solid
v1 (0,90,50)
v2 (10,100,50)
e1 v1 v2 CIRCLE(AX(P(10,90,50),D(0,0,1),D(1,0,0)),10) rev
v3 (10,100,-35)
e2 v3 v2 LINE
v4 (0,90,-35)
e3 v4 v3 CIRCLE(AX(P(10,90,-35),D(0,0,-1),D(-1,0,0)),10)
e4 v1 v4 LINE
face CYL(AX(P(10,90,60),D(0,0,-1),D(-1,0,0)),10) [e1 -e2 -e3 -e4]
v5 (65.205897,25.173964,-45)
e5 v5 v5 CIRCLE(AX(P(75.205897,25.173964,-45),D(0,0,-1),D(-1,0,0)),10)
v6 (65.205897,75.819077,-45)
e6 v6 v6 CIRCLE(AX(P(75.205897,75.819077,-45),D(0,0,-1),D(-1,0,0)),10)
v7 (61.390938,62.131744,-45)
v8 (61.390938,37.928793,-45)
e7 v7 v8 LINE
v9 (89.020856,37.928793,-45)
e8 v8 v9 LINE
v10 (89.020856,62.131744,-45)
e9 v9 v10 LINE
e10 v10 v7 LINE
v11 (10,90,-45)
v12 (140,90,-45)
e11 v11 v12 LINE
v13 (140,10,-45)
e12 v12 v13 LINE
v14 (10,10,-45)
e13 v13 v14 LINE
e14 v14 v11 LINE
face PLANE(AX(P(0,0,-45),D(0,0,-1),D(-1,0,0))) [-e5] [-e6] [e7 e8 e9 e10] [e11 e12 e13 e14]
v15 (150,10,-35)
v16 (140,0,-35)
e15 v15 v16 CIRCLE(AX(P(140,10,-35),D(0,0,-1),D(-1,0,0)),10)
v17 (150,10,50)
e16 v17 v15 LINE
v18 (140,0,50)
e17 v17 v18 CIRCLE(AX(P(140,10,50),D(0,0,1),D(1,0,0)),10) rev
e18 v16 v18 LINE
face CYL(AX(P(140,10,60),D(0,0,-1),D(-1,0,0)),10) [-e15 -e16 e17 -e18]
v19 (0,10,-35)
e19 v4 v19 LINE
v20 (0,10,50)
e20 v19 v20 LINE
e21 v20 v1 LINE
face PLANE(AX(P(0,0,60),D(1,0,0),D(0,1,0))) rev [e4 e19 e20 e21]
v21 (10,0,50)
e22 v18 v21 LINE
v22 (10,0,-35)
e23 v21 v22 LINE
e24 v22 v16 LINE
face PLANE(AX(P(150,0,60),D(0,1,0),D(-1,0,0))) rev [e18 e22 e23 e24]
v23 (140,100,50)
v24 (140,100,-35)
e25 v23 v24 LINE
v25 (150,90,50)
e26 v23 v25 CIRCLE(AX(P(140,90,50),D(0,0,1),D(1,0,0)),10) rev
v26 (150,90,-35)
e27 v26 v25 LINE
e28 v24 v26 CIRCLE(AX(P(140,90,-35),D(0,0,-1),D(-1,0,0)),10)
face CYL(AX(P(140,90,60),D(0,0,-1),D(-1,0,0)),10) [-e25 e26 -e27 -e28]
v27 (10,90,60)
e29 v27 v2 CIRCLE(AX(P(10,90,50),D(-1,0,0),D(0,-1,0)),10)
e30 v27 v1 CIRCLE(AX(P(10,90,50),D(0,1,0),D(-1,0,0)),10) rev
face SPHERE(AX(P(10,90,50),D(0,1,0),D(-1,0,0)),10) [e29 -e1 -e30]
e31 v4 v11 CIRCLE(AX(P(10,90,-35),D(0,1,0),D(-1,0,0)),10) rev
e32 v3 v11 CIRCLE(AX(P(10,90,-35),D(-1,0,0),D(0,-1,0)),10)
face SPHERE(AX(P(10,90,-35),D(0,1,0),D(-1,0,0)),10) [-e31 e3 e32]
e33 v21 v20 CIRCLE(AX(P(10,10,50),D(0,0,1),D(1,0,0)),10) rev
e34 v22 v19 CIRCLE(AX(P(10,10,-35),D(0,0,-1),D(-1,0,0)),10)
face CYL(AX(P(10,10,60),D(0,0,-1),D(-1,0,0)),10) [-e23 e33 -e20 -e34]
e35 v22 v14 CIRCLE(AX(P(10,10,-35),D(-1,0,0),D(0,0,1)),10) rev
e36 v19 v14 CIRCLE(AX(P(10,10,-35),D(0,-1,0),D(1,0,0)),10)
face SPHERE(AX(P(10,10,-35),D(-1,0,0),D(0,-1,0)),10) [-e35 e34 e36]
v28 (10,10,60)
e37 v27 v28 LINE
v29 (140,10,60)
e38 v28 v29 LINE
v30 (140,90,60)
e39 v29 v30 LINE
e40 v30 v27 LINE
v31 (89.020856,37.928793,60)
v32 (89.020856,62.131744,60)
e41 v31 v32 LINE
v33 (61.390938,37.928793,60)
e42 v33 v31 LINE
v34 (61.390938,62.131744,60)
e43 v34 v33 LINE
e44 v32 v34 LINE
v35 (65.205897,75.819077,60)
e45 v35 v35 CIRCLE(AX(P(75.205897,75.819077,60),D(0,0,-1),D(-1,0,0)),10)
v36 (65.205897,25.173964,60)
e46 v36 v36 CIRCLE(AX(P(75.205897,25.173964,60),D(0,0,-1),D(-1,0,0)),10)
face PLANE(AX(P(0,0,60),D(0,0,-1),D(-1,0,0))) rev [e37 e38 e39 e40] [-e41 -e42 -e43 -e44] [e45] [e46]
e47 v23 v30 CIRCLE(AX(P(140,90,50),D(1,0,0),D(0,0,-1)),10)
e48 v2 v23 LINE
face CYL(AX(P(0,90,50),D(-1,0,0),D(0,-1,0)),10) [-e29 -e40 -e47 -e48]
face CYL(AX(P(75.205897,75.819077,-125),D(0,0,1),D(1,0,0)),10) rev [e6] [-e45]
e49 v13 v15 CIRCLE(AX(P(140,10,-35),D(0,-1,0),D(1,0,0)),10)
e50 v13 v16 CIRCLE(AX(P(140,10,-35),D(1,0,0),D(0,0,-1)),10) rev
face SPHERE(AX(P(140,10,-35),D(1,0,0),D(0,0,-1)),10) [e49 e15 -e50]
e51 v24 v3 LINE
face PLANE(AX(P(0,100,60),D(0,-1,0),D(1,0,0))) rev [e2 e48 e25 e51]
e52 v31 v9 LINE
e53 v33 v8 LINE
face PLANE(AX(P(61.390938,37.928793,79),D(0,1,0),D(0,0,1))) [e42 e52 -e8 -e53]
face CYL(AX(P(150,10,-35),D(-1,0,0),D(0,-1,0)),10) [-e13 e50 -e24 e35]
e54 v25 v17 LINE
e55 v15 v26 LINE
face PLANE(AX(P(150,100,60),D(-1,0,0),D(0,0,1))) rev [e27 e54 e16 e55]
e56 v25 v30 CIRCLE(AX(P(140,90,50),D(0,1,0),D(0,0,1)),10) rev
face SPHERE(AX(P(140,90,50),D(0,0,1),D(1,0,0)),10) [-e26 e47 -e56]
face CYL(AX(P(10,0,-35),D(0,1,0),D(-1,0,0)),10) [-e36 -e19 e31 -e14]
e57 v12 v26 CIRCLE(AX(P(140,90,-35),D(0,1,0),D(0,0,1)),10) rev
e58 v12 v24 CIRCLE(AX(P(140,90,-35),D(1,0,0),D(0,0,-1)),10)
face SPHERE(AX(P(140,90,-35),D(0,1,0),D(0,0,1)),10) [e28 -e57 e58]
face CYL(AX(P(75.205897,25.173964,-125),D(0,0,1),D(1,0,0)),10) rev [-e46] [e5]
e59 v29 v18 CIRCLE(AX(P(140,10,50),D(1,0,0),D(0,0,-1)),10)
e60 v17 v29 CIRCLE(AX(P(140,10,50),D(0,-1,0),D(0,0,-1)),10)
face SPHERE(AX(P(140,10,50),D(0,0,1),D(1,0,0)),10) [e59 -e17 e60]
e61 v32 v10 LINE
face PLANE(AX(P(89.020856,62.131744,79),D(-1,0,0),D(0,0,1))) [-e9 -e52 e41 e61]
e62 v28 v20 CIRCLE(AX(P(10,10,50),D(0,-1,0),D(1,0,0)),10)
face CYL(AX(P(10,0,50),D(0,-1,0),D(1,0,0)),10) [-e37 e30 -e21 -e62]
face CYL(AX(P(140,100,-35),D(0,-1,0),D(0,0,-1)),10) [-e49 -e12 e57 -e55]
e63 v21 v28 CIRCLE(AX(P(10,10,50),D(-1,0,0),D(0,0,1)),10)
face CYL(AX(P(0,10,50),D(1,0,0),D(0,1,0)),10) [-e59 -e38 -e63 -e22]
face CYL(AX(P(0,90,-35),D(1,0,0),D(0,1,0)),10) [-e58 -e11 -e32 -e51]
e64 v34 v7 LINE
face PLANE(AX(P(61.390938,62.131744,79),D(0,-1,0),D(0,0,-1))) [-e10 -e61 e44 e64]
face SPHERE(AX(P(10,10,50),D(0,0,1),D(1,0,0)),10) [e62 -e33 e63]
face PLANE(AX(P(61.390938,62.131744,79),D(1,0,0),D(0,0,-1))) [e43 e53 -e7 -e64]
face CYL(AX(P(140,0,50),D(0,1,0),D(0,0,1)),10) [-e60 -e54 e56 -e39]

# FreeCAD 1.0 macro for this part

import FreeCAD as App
import Part
import Sketcher
from FreeCAD import Vector


def edges_at(feature, points):
    """Names of the edges that pass closest to the given points."""
    edges = feature.Shape.Edges
    near = lambda p: min(range(len(edges)), key=lambda i: edges[i].distToShape(Part.Vertex(*p))[0])
    return sorted({f"Edge{near(p) + 1}" for p in points})

doc = App.newDocument("Part")
params = doc.addObject("Spreadsheet::Sheet", "Params")
for row, (alias, value) in enumerate([
    ("sketch1_width", "150 mm"),
    ("sketch1_height", "100 mm"),
    ("pad1_length", "60 mm"),
    ("pad1_length2", "45 mm"),
    ("fillet_radius", "10 mm"),
    ("sketch3_diameter", "20 mm"),
    ("pocket2_length", "250 mm"),
], start=1):
    params.set(f"A{row}", alias)
    params.set(f"B{row}", "=" + value)
    params.setAlias(f"B{row}", alias)

body = doc.addObject("PartDesign::Body", "Body")

# Sketch on XY plane
sketch1 = body.newObject("Sketcher::SketchObject", "Sketch")
sketch1.AttachmentSupport = (doc.getObject("XY_Plane"), [""])
sketch1.MapMode = "FlatFace"
sketch1.addGeometry(Part.LineSegment(Vector(0, 100, 0), Vector(0, 0, 0)), False)
sketch1.addGeometry(Part.LineSegment(Vector(0, 0, 0), Vector(150, 0, 0)), False)
sketch1.addGeometry(Part.LineSegment(Vector(150, 0, 0), Vector(150, 100, 0)), False)
sketch1.addGeometry(Part.LineSegment(Vector(150, 100, 0), Vector(0, 100, 0)), False)
sketch1.addConstraint(Sketcher.Constraint("Coincident", 0, 2, 1, 1))
sketch1.addConstraint(Sketcher.Constraint("Coincident", 1, 2, 2, 1))
sketch1.addConstraint(Sketcher.Constraint("Coincident", 2, 2, 3, 1))
sketch1.addConstraint(Sketcher.Constraint("Coincident", 3, 2, 0, 1))
sketch1.addConstraint(Sketcher.Constraint("Vertical", 0))
sketch1.addConstraint(Sketcher.Constraint("Horizontal", 1))
sketch1.addConstraint(Sketcher.Constraint("Vertical", 2))
sketch1.addConstraint(Sketcher.Constraint("Horizontal", 3))
sketch1.addConstraint(Sketcher.Constraint("Coincident", 0, 2, -1, 1))
sketch1.addConstraint(Sketcher.Constraint("DistanceX", 1, 1, 1, 2, 150.0))
sketch1.addConstraint(Sketcher.Constraint("DistanceY", 0, 2, 0, 1, 100.0))
sketch1.setExpression("Constraints[9]", "Params.sketch1_width")
sketch1.setExpression("Constraints[10]", "Params.sketch1_height")
pad1 = body.newObject("PartDesign::Pad", "Pad")
pad1.Profile = sketch1
pad1.Type = "TwoLengths"
pad1.setExpression("Length", "Params.pad1_length")
pad1.setExpression("Length2", "Params.pad1_length2")

# Sketch on XY plane
sketch2 = body.newObject("Sketcher::SketchObject", "Sketch001")
sketch2.AttachmentSupport = (doc.getObject("XY_Plane"), [""])
sketch2.MapMode = "FlatFace"
sketch2.addGeometry(Part.LineSegment(Vector(61, 62, 0), Vector(61, 38, 0)), False)
sketch2.addGeometry(Part.LineSegment(Vector(61, 38, 0), Vector(89, 38, 0)), False)
sketch2.addGeometry(Part.LineSegment(Vector(89, 38, 0), Vector(89, 62, 0)), False)
sketch2.addGeometry(Part.LineSegment(Vector(89, 62, 0), Vector(61, 62, 0)), False)
sketch2.addConstraint(Sketcher.Constraint("Coincident", 0, 2, 1, 1))
sketch2.addConstraint(Sketcher.Constraint("Coincident", 1, 2, 2, 1))
sketch2.addConstraint(Sketcher.Constraint("Coincident", 2, 2, 3, 1))
sketch2.addConstraint(Sketcher.Constraint("Coincident", 3, 2, 0, 1))
sketch2.addConstraint(Sketcher.Constraint("Vertical", 0))
sketch2.addConstraint(Sketcher.Constraint("Horizontal", 1))
sketch2.addConstraint(Sketcher.Constraint("Vertical", 2))
sketch2.addConstraint(Sketcher.Constraint("Horizontal", 3))
sketch2.addConstraint(Sketcher.Constraint("DistanceY", 0, 2, 0, 1, 24.202951))
sketch2.addConstraint(Sketcher.Constraint("DistanceX", 1, 1, 1, 2, 27.629918))
sketch2.addConstraint(Sketcher.Constraint("DistanceX", -1, 1, 0, 2, 61.390938))
sketch2.addConstraint(Sketcher.Constraint("DistanceY", -1, 1, 0, 2, 37.928793))
pocket1 = body.newObject("PartDesign::Pocket", "Pocket")
pocket1.Profile = sketch2
pocket1.Type = "ThroughAll"
pocket1.Midplane = True
doc.recompute()

fillet = body.newObject("PartDesign::Fillet", "Fillet")
fillet.Base = (pocket1, edges_at(pocket1, [
    (75, 0, -45),
    (0, 50, -45),
    (75, 100, -45),
    (150, 50, -45),
    (75, 100, 60),
    (0, 50, 60),
    (75, 0, 60),
    (0, 0, 7.5),
    (0, 100, 7.5),
    (150, 100, 7.5),
    (150, 0, 7.5),
    (150, 50, 60),
]))
fillet.setExpression("Radius", "Params.fillet_radius")

# Sketch on XY plane
sketch3 = body.newObject("Sketcher::SketchObject", "Sketch002")
sketch3.AttachmentSupport = (doc.getObject("XY_Plane"), [""])
sketch3.MapMode = "FlatFace"
sketch3.addGeometry(Part.Circle(Vector(75, 76, 0), Vector(0, 0, 1), 10), False)
sketch3.addGeometry(Part.Circle(Vector(75, 25, 0), Vector(0, 0, 1), 10), False)
sketch3.addConstraint(Sketcher.Constraint("Equal", 0, 1))
sketch3.addConstraint(Sketcher.Constraint("Vertical", 0, 3, 1, 3))
sketch3.addConstraint(Sketcher.Constraint("Diameter", 0, 20.0))
sketch3.addConstraint(Sketcher.Constraint("DistanceX", -1, 1, 0, 3, 75.205897))
sketch3.addConstraint(Sketcher.Constraint("DistanceY", -1, 1, 0, 3, 75.819077))
sketch3.addConstraint(Sketcher.Constraint("DistanceY", -1, 1, 1, 3, 25.173964))
sketch3.setExpression("Constraints[2]", "Params.sketch3_diameter")
pocket2 = body.newObject("PartDesign::Pocket", "Pocket001")
pocket2.Profile = sketch3
pocket2.setExpression("Length", "Params.pocket2_length")
pocket2.Midplane = True

doc.recompute()
